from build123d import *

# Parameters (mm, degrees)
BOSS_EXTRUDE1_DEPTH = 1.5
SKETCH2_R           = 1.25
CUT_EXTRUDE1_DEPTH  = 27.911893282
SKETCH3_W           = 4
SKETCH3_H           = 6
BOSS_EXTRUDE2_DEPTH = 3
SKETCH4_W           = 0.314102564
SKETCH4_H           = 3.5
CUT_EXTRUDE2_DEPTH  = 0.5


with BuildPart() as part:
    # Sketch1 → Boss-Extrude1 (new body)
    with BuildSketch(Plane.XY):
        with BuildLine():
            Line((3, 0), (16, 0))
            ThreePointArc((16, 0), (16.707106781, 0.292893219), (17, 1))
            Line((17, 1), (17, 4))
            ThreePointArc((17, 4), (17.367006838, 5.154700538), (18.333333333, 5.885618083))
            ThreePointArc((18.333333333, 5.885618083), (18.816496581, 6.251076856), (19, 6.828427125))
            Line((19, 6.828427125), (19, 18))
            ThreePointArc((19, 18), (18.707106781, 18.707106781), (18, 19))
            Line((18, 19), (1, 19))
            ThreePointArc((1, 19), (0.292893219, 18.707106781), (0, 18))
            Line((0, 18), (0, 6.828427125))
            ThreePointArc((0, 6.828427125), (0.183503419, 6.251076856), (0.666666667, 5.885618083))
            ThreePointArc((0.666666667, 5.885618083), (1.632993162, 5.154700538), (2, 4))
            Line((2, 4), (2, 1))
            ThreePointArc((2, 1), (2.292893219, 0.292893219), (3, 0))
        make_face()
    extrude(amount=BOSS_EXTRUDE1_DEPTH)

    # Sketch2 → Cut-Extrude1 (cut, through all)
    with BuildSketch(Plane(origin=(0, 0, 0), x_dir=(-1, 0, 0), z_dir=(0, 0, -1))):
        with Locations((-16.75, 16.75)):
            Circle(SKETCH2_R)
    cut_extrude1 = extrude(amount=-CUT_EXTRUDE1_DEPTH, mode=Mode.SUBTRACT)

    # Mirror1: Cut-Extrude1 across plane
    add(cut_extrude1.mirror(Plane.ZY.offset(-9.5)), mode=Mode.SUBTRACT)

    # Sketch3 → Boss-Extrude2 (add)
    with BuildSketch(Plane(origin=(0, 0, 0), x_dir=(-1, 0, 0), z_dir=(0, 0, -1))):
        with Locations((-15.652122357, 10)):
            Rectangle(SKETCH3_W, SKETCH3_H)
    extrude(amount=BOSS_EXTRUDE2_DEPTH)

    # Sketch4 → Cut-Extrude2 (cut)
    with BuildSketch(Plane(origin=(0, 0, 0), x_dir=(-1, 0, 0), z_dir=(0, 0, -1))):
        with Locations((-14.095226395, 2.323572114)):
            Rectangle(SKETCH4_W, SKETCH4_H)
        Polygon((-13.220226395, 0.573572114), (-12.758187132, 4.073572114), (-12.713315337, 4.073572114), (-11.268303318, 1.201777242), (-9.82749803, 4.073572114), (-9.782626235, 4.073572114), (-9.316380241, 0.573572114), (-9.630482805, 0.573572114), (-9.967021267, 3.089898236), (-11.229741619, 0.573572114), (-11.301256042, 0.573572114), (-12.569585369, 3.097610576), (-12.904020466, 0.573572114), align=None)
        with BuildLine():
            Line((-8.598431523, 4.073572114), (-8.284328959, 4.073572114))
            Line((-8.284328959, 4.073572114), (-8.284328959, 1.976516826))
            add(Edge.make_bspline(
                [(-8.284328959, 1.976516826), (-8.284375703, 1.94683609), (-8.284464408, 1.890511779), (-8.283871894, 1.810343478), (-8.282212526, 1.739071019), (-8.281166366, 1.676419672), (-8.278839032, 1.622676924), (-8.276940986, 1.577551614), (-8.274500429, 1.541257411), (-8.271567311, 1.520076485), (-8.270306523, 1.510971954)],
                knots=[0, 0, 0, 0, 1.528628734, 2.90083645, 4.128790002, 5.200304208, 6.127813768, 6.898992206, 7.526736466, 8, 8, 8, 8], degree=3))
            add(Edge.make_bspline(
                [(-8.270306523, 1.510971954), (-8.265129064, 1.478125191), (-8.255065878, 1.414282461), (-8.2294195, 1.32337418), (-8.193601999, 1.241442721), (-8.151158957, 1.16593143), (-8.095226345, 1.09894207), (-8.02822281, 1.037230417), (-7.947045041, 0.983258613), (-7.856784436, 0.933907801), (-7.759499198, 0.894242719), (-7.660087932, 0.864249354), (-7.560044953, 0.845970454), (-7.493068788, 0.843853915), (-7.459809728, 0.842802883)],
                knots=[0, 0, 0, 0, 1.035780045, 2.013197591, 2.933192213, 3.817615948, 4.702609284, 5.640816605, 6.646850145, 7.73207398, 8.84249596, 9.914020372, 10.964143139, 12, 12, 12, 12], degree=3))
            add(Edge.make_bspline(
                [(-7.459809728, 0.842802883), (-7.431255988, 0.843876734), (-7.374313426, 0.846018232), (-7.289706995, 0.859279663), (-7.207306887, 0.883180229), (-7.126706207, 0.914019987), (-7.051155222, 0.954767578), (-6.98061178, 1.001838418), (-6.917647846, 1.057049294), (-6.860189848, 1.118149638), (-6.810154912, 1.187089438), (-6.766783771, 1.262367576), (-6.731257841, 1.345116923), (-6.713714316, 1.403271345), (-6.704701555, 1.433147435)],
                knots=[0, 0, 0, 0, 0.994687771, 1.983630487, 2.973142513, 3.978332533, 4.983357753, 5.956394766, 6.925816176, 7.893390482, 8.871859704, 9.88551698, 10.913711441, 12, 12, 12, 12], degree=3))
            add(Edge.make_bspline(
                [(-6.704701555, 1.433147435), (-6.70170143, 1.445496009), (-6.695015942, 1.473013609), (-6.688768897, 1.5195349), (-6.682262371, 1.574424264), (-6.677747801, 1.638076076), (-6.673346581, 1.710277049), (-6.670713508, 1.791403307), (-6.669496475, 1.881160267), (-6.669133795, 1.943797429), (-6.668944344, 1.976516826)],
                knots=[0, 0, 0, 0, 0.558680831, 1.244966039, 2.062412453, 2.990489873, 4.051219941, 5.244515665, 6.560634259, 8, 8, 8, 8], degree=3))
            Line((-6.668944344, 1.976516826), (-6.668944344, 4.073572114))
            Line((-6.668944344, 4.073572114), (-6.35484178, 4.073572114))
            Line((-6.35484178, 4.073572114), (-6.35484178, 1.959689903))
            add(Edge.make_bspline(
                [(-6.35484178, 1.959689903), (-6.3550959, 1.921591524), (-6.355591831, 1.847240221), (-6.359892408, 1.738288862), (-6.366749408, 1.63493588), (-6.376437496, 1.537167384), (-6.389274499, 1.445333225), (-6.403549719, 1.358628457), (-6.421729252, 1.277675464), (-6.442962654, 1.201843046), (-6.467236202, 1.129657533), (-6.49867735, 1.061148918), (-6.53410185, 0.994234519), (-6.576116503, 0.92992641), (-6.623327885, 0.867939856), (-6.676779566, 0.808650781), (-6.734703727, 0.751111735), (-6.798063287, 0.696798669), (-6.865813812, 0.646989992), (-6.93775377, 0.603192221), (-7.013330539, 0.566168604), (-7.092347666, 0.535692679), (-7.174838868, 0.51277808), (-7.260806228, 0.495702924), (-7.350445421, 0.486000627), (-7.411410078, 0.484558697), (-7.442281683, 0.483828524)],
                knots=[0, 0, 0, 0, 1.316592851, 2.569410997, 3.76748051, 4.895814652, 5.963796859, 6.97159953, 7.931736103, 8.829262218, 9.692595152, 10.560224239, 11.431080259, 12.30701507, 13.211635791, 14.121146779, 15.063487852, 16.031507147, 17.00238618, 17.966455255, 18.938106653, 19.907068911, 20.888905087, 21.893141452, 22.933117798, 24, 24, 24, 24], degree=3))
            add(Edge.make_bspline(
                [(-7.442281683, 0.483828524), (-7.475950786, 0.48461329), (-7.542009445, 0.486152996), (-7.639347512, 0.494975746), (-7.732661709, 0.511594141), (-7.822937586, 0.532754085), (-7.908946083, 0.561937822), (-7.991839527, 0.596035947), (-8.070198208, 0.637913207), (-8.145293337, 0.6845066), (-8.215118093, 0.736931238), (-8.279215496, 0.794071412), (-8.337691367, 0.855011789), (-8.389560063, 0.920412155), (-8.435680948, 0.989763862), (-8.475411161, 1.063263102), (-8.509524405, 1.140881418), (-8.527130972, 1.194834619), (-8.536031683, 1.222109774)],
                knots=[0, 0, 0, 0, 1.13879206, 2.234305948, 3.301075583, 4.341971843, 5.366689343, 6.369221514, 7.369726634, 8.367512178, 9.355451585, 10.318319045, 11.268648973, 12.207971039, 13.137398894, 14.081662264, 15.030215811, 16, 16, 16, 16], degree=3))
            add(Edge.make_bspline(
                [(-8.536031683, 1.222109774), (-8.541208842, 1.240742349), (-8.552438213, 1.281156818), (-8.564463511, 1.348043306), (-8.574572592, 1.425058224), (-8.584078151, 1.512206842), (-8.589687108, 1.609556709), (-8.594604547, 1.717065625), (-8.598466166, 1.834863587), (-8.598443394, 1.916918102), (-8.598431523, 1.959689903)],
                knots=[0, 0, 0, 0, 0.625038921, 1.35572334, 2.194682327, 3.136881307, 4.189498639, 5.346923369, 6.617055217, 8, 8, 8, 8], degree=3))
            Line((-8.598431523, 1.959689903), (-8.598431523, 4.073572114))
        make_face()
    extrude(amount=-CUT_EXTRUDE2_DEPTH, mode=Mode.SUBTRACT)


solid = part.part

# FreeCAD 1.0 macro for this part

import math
import FreeCAD as App
import Part
import Sketcher

V = App.Vector


def add_polygon(sketch, points):
    """Adds a closed chain of lines whose ends are joined by coincident constraints."""
    first, n = sketch.GeometryCount, len(points)
    for a, b in zip(points, points[1:] + points[:1]):
        sketch.addGeometry(Part.LineSegment(App.Vector(*a, 0), App.Vector(*b, 0)), False)
    for i in range(n):
        sketch.addConstraint(Sketcher.Constraint("Coincident", first + i, 2, first + (i + 1) % n, 1))

doc = App.newDocument("Part")
body = doc.addObject("PartDesign::Body", "Body")

sketch1 = body.newObject("Sketcher::SketchObject", "Sketch")
sketch1.AttachmentSupport = (doc.getObject("XY_Plane"), [""])
sketch1.MapMode = "FlatFace"
sketch1.addGeometry([
    Part.LineSegment(V(3, 0, 0), V(16, 0, 0)),
    Part.ArcOfCircle(Part.Circle(V(16, 1, 0), V(0, 0, 1), 1), math.radians(-90), math.radians(0)),
    Part.LineSegment(V(17, 1, 0), V(17, 4, 0)),
    Part.ArcOfCircle(Part.Circle(V(19, 4, 0), V(0, 0, 1), 2), math.radians(109), math.radians(180)),
    Part.ArcOfCircle(Part.Circle(V(18, 6.8, 0), V(0, 0, 1), 1), math.radians(-71), math.radians(0)),
    Part.LineSegment(V(19, 6.8, 0), V(19, 18, 0)),
    Part.ArcOfCircle(Part.Circle(V(18, 18, 0), V(0, 0, 1), 1), math.radians(0), math.radians(90)),
    Part.LineSegment(V(18, 19, 0), V(1, 19, 0)),
    Part.ArcOfCircle(Part.Circle(V(1, 18, 0), V(0, 0, 1), 1), math.radians(90), math.radians(180)),
    Part.LineSegment(V(0, 18, 0), V(0, 6.8, 0)),
    Part.ArcOfCircle(Part.Circle(V(1, 6.8, 0), V(0, 0, 1), 1), math.radians(180), math.radians(251)),
    Part.ArcOfCircle(Part.Circle(V(0, 4, 0), V(0, 0, 1), 2), math.radians(0), math.radians(71)),
    Part.LineSegment(V(2, 4, 0), V(2, 1, 0)),
    Part.ArcOfCircle(Part.Circle(V(3, 1, 0), V(0, 0, 1), 1), math.radians(-180), math.radians(-90)),
], False)
sketch1.addConstraint([
    Sketcher.Constraint("Tangent", 0, 2, 1, 1),
    Sketcher.Constraint("Tangent", 1, 2, 2, 1),
    Sketcher.Constraint("Tangent", 2, 2, 3, 2),
    Sketcher.Constraint("Tangent", 3, 1, 4, 1),
    Sketcher.Constraint("Tangent", 4, 2, 5, 1),
    Sketcher.Constraint("Tangent", 5, 2, 6, 1),
    Sketcher.Constraint("Tangent", 6, 2, 7, 1),
    Sketcher.Constraint("Tangent", 7, 2, 8, 1),
    Sketcher.Constraint("Tangent", 8, 2, 9, 1),
    Sketcher.Constraint("Tangent", 9, 2, 10, 1),
    Sketcher.Constraint("Tangent", 10, 2, 11, 2),
    Sketcher.Constraint("Tangent", 11, 1, 12, 1),
    Sketcher.Constraint("Tangent", 12, 2, 13, 1),
    Sketcher.Constraint("Tangent", 13, 2, 0, 1),
    Sketcher.Constraint("Horizontal", 0),
    Sketcher.Constraint("Vertical", 2),
    Sketcher.Constraint("Vertical", 5),
    Sketcher.Constraint("Horizontal", 7),
    Sketcher.Constraint("Vertical", 9),
    Sketcher.Constraint("Vertical", 12),
    Sketcher.Constraint("Equal", 1, 4),
    Sketcher.Constraint("Equal", 4, 6),
    Sketcher.Constraint("Equal", 6, 8),
    Sketcher.Constraint("Equal", 8, 10),
    Sketcher.Constraint("Equal", 3, 11),
    Sketcher.Constraint("Equal", 10, 13),
    Sketcher.Constraint("PointOnObject", 11, 3, -2),
    Sketcher.Constraint("PointOnObject", 0, 2, -1),
    Sketcher.Constraint("PointOnObject", 8, 2, -2),
    Sketcher.Constraint("Horizontal", 4, 3, 10, 3),
    Sketcher.Constraint("Horizontal", 3, 3, 11, 3),
    Sketcher.Constraint("Radius", 1, 1.0),
    Sketcher.Constraint("Radius", 3, 2.0),
    Sketcher.Constraint("DistanceX", 0, 1, 0, 2, 13.0),
    Sketcher.Constraint("DistanceY", 2, 1, 2, 2, 3.0),
    Sketcher.Constraint("DistanceY", -1, 1, 6, 3, 18.0),
])
pad1 = body.newObject("PartDesign::Pad", "Pad")
pad1.Profile = sketch1
pad1.Length = 1.5

sketch2 = body.newObject("Sketcher::SketchObject", "Sketch001")
sketch2.AttachmentSupport = (doc.getObject("XY_Plane"), [""])
sketch2.MapMode = "FlatFace"
sketch2.addGeometry(Part.Circle(V(16.8, 16.8, 0), V(0, 0, 1), 1.2), False)
sketch2.addConstraint([
    Sketcher.Constraint("Diameter", 0, 2.5),
    Sketcher.Constraint("DistanceX", -1, 1, 0, 3, 16.75),
    Sketcher.Constraint("DistanceY", -1, 1, 0, 3, 16.75),
])
pocket1 = body.newObject("PartDesign::Pocket", "Pocket")
pocket1.Profile = sketch2
pocket1.Type = "ThroughAll"
pocket1.Reversed = True
doc.recompute()

datumplane = body.newObject("PartDesign::Plane", "DatumPlane")
datumplane.AttachmentSupport = (doc.getObject("YZ_Plane"), [""])
datumplane.MapMode = "FlatFace"
datumplane.AttachmentOffset = App.Placement(V(0, 0, 9.5), App.Rotation())
mirrored = body.newObject("PartDesign::Mirrored", "Mirrored")
mirrored.Originals = [pocket1]
mirrored.MirrorPlane = (datumplane, [""])
body.Tip = mirrored

sketch3 = body.newObject("Sketcher::SketchObject", "Sketch002")
sketch3.AttachmentSupport = (doc.getObject("XY_Plane"), [""])
sketch3.MapMode = "FlatFace"
add_polygon(sketch3, [(17.7, 13), (17.7, 7), (13.7, 7), (13.7, 13)])
sketch3.addConstraint([
    Sketcher.Constraint("Vertical", 0),
    Sketcher.Constraint("Horizontal", 1),
    Sketcher.Constraint("Vertical", 2),
    Sketcher.Constraint("Horizontal", 3),
    Sketcher.Constraint("DistanceX", 1, 2, 1, 1, 4.0),
    Sketcher.Constraint("DistanceY", 0, 2, 0, 1, 6.0),
    Sketcher.Constraint("DistanceY", -1, 1, 0, 2, 7.0),
    Sketcher.Constraint("DistanceX", -1, 1, 0, 2, 17.652122),
])
pad2 = body.newObject("PartDesign::Pad", "Pad001")
pad2.Profile = sketch3
pad2.Length = 3
pad2.Reversed = True

sketch4 = body.newObject("Sketcher::SketchObject", "Sketch003")
sketch4.AttachmentSupport = (doc.getObject("XY_Plane"), [""])
sketch4.MapMode = "FlatFace"
add_polygon(sketch4, [(14.252278, 4.073572), (14.252278, 0.573572), (13.938175, 0.573572), (13.938175, 4.073572)])
add_polygon(sketch4, [(12.758187, 4.073572), (13.220226, 0.573572), (12.90402, 0.573572), (12.569585, 3.097611), (11.301256, 0.573572), (11.229742, 0.573572), (9.967021, 3.089898), (9.630483, 0.573572), (9.31638, 0.573572), (9.782626, 4.073572), (9.827498, 4.073572), (11.268303, 1.201777), (12.713315, 4.073572)])
sketch4.addGeometry(Part.LineSegment(V(8.284329, 4.073572, 0), V(8.598432, 4.073572, 0)), False)
sketch4.addGeometry(Part.LineSegment(V(8.598432, 4.073572, 0), V(8.598432, 1.95969, 0)), False)
sketch4.addGeometry(Part.BSplineCurve([V(8.536032, 1.22211, 0), V(8.541209, 1.240742, 0), V(8.552438, 1.281157, 0), V(8.564464, 1.348043, 0), V(8.574573, 1.425058, 0), V(8.584078, 1.512207, 0), V(8.589687, 1.609557, 0), V(8.594605, 1.717066, 0), V(8.598466, 1.834864, 0), V(8.598443, 1.916918, 0), V(8.598432, 1.95969, 0)], [4, 1, 1, 1, 1, 1, 1, 1, 4], [0, 0.625038921, 1.35572334, 2.194682327, 3.136881307, 4.189498639, 5.346923369, 6.617055217, 8], False, 3, [1, 1, 1, 1, 1, 1, 1, 1, 1, 1, 1], False), False)
sketch4.addGeometry(Part.BSplineCurve([V(7.442282, 0.483829, 0), V(7.475951, 0.484613, 0), V(7.542009, 0.486153, 0), V(7.639348, 0.494976, 0), V(7.732662, 0.511594, 0), V(7.822938, 0.532754, 0), V(7.908946, 0.561938, 0), V(7.99184, 0.596036, 0), V(8.070198, 0.637913, 0), V(8.145293, 0.684507, 0), V(8.215118, 0.736931, 0), V(8.279215, 0.794071, 0), V(8.337691, 0.855012, 0), V(8.38956, 0.920412, 0), V(8.435681, 0.989764, 0), V(8.475411, 1.063263, 0), V(8.509524, 1.140881, 0), V(8.527131, 1.194835, 0), V(8.536032, 1.22211, 0)], [4, 1, 1, 1, 1, 1, 1, 1, 1, 1, 1, 1, 1, 1, 1, 1, 4], [0, 1.13879206, 2.234305948, 3.301075583, 4.341971843, 5.366689343, 6.369221514, 7.369726634, 8.367512178, 9.355451585, 10.318319045, 11.268648973, 12.207971039, 13.137398894, 14.081662264, 15.030215811, 16], False, 3, [1, 1, 1, 1, 1, 1, 1, 1, 1, 1, 1, 1, 1, 1, 1, 1, 1, 1, 1], False), False)
sketch4.addGeometry(Part.BSplineCurve([V(6.354842, 1.95969, 0), V(6.355096, 1.921592, 0), V(6.355592, 1.84724, 0), V(6.359892, 1.738289, 0), V(6.366749, 1.634936, 0), V(6.376437, 1.537167, 0), V(6.389274, 1.445333, 0), V(6.40355, 1.358628, 0), V(6.421729, 1.277675, 0), V(6.442963, 1.201843, 0), V(6.467236, 1.129658, 0), V(6.498677, 1.061149, 0), V(6.534102, 0.994235, 0), V(6.576117, 0.929926, 0), V(6.623328, 0.86794, 0), V(6.67678, 0.808651, 0), V(6.734704, 0.751112, 0), V(6.798063, 0.696799, 0), V(6.865814, 0.64699, 0), V(6.937754, 0.603192, 0), V(7.013331, 0.566169, 0), V(7.092348, 0.535693, 0), V(7.174839, 0.512778, 0), V(7.260806, 0.495703, 0), V(7.350445, 0.486001, 0), V(7.41141, 0.484559, 0), V(7.442282, 0.483829, 0)], [4, 1, 1, 1, 1, 1, 1, 1, 1, 1, 1, 1, 1, 1, 1, 1, 1, 1, 1, 1, 1, 1, 1, 1, 4], [0, 1.316592851, 2.569410997, 3.76748051, 4.895814652, 5.963796859, 6.97159953, 7.931736103, 8.829262218, 9.692595152, 10.560224239, 11.431080259, 12.30701507, 13.211635791, 14.121146779, 15.063487852, 16.031507147, 17.00238618, 17.966455255, 18.938106653, 19.907068911, 20.888905087, 21.893141452, 22.933117798, 24], False, 3, [1, 1, 1, 1, 1, 1, 1, 1, 1, 1, 1, 1, 1, 1, 1, 1, 1, 1, 1, 1, 1, 1, 1, 1, 1, 1, 1], False), False)
sketch4.addGeometry(Part.LineSegment(V(6.354842, 1.95969, 0), V(6.354842, 4.073572, 0)), False)
sketch4.addGeometry(Part.LineSegment(V(6.354842, 4.073572, 0), V(6.668944, 4.073572, 0)), False)
sketch4.addGeometry(Part.LineSegment(V(6.668944, 4.073572, 0), V(6.668944, 1.976517, 0)), False)
sketch4.addGeometry(Part.BSplineCurve([V(6.704702, 1.433147, 0), V(6.701701, 1.445496, 0), V(6.695016, 1.473014, 0), V(6.688769, 1.519535, 0), V(6.682262, 1.574424, 0), V(6.677748, 1.638076, 0), V(6.673347, 1.710277, 0), V(6.670714, 1.791403, 0), V(6.669496, 1.88116, 0), V(6.669134, 1.943797, 0), V(6.668944, 1.976517, 0)], [4, 1, 1, 1, 1, 1, 1, 1, 4], [0, 0.558680831, 1.244966039, 2.062412453, 2.990489873, 4.051219941, 5.244515665, 6.560634259, 8], False, 3, [1, 1, 1, 1, 1, 1, 1, 1, 1, 1, 1], False), False)
sketch4.addGeometry(Part.BSplineCurve([V(7.45981, 0.842803, 0), V(7.431256, 0.843877, 0), V(7.374313, 0.846018, 0), V(7.289707, 0.85928, 0), V(7.207307, 0.88318, 0), V(7.126706, 0.91402, 0), V(7.051155, 0.954768, 0), V(6.980612, 1.001838, 0), V(6.917648, 1.057049, 0), V(6.86019, 1.11815, 0), V(6.810155, 1.187089, 0), V(6.766784, 1.262368, 0), V(6.731258, 1.345117, 0), V(6.713714, 1.403271, 0), V(6.704702, 1.433147, 0)], [4, 1, 1, 1, 1, 1, 1, 1, 1, 1, 1, 1, 4], [0, 0.994687771, 1.983630487, 2.973142513, 3.978332533, 4.983357753, 5.956394766, 6.925816176, 7.893390482, 8.871859704, 9.88551698, 10.913711441, 12], False, 3, [1, 1, 1, 1, 1, 1, 1, 1, 1, 1, 1, 1, 1, 1, 1], False), False)
sketch4.addGeometry(Part.BSplineCurve([V(8.270307, 1.510972, 0), V(8.265129, 1.478125, 0), V(8.255066, 1.414282, 0), V(8.22942, 1.323374, 0), V(8.193602, 1.241443, 0), V(8.151159, 1.165931, 0), V(8.095226, 1.098942, 0), V(8.028223, 1.03723, 0), V(7.947045, 0.983259, 0), V(7.856784, 0.933908, 0), V(7.759499, 0.894243, 0), V(7.660088, 0.864249, 0), V(7.560045, 0.84597, 0), V(7.493069, 0.843854, 0), V(7.45981, 0.842803, 0)], [4, 1, 1, 1, 1, 1, 1, 1, 1, 1, 1, 1, 4], [0, 1.035780045, 2.013197591, 2.933192213, 3.817615948, 4.702609284, 5.640816605, 6.646850145, 7.73207398, 8.84249596, 9.914020372, 10.964143139, 12], False, 3, [1, 1, 1, 1, 1, 1, 1, 1, 1, 1, 1, 1, 1, 1, 1], False), False)
sketch4.addGeometry(Part.BSplineCurve([V(8.284329, 1.976517, 0), V(8.284376, 1.946836, 0), V(8.284464, 1.890512, 0), V(8.283872, 1.810343, 0), V(8.282213, 1.739071, 0), V(8.281166, 1.67642, 0), V(8.278839, 1.622677, 0), V(8.276941, 1.577552, 0), V(8.2745, 1.541257, 0), V(8.271567, 1.520076, 0), V(8.270307, 1.510972, 0)], [4, 1, 1, 1, 1, 1, 1, 1, 4], [0, 1.528628734, 2.90083645, 4.128790002, 5.200304208, 6.127813768, 6.898992206, 7.526736466, 8], False, 3, [1, 1, 1, 1, 1, 1, 1, 1, 1, 1, 1], False), False)
sketch4.addGeometry(Part.LineSegment(V(8.284329, 1.976517, 0), V(8.284329, 4.073572, 0)), False)
sketch4.addConstraint([
    Sketcher.Constraint("Block", 19),
    Sketcher.Constraint("Block", 20),
    Sketcher.Constraint("Block", 21),
    Sketcher.Constraint("Block", 25),
    Sketcher.Constraint("Block", 26),
    Sketcher.Constraint("Block", 27),
    Sketcher.Constraint("Block", 28),
    Sketcher.Constraint("Coincident", 17, 2, 18, 1),
    Sketcher.Constraint("Coincident", 18, 2, 19, 2),
    Sketcher.Constraint("Coincident", 21, 1, 22, 1),
    Sketcher.Constraint("Coincident", 22, 2, 23, 1),
    Sketcher.Constraint("Coincident", 23, 2, 24, 1),
    Sketcher.Constraint("Coincident", 24, 2, 25, 2),
    Sketcher.Constraint("Coincident", 28, 1, 29, 1),
    Sketcher.Constraint("Coincident", 29, 2, 17, 1),
    Sketcher.Constraint("Vertical", 0),
    Sketcher.Constraint("Horizontal", 1),
    Sketcher.Constraint("Vertical", 2),
    Sketcher.Constraint("Horizontal", 3),
    Sketcher.Constraint("Horizontal", 5),
    Sketcher.Constraint("Horizontal", 8),
    Sketcher.Constraint("Horizontal", 11),
    Sketcher.Constraint("Horizontal", 13),
    Sketcher.Constraint("Horizontal", 16),
    Sketcher.Constraint("Horizontal", 17),
    Sketcher.Constraint("Vertical", 18),
    Sketcher.Constraint("Vertical", 22),
    Sketcher.Constraint("Horizontal", 23),
    Sketcher.Constraint("Vertical", 24),
    Sketcher.Constraint("Vertical", 29),
    Sketcher.Constraint("DistanceY", 0, 2, 0, 1, 3.5),
    Sketcher.Constraint("DistanceY", 4, 2, 2, 2, 3.5),
    Sketcher.Constraint("DistanceY", 10, 2, 12, 2, 3.5),
    Sketcher.Constraint("DistanceY", 8, 2, 12, 2, 3.5),
    Sketcher.Constraint("DistanceY", 11, 2, 17, 2, 3.5),
    Sketcher.Constraint("DistanceX", 9, 2, 5, 2, 2.936999),
    Sketcher.Constraint("Distance", 6, 2.546098),
    Sketcher.Constraint("DistanceX", 13, 1, 13, 2, 0.044872),
    Sketcher.Constraint("DistanceX", 16, 1, 16, 2, 0.044872),
    Sketcher.Constraint("DistanceY", -1, 1, 9, 2, 3.089898),
    Sketcher.Constraint("DistanceX", -1, 1, 13, 2, 9.827498),
    Sketcher.Constraint("DistanceX", 6, 2, 16, 2, 0.188602),
    Sketcher.Constraint("Distance", 7, 2.824788),
    Sketcher.Constraint("Distance", 9, 2.815379),
    Sketcher.Constraint("Distance", 10, 2.538731),
    Sketcher.Constraint("Distance", 12, 3.530918),
    Sketcher.Constraint("Distance", 15, 3.214851),
    Sketcher.Constraint("DistanceX", 1, 2, 1, 1, 0.314103),
    Sketcher.Constraint("DistanceX", 5, 2, 5, 1, 0.316206),
    Sketcher.Constraint("DistanceX", 8, 2, 8, 1, 0.071514),
    Sketcher.Constraint("DistanceX", 11, 2, 11, 1, 0.314103),
    Sketcher.Constraint("DistanceY", 18, 2, 18, 1, 2.113882),
    Sketcher.Constraint("DistanceY", 22, 1, 22, 2, 2.113882),
    Sketcher.Constraint("DistanceY", -1, 1, 6, 2, 3.097611),
    Sketcher.Constraint("DistanceX", 4, 2, 1, 2, 0.717949),
    Sketcher.Constraint("DistanceX", 8, 2, 14, 2, 0.038562),
    Sketcher.Constraint("DistanceY", 6, 2, 15, 2, 0.975962),
])
pocket2 = body.newObject("PartDesign::Pocket", "Pocket001")
pocket2.Profile = sketch4
pocket2.Length = 0.5
pocket2.Reversed = True

doc.recompute()
